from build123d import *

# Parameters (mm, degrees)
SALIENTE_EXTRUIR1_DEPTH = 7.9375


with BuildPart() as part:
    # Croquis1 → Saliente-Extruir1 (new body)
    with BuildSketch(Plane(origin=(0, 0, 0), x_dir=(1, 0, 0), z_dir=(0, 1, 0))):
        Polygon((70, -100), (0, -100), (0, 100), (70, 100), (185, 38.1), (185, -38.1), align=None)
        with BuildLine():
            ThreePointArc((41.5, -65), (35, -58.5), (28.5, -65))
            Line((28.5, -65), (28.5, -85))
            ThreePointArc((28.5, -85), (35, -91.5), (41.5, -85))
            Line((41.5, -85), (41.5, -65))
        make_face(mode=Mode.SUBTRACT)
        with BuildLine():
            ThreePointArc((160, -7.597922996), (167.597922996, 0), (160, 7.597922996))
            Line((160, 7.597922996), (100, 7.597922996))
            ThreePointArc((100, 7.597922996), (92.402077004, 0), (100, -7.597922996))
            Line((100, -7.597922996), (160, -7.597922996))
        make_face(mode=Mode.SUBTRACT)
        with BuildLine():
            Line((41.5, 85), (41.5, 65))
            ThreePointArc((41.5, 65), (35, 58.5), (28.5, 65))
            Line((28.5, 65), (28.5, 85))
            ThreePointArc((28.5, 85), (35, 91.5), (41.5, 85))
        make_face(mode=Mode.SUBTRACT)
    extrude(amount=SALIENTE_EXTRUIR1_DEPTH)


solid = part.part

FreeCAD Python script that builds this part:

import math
import FreeCAD as App
import Part
import Sketcher

doc = App.newDocument("Part")
body = doc.addObject("PartDesign::Body", "Body")

# Sketch on XZ plane
sketch1 = body.newObject("Sketcher::SketchObject", "Sketch")
sketch1.AttachmentSupport = (doc.getObject("XZ_Plane"), [""])
sketch1.MapMode = "FlatFace"
sketch1.addGeometry(Part.LineSegment(App.Vector(0, 100, 0), App.Vector(70, 100, 0)), False)
sketch1.addGeometry(Part.LineSegment(App.Vector(70, 100, 0), App.Vector(185, 38, 0)), False)
sketch1.addGeometry(Part.LineSegment(App.Vector(185, 38, 0), App.Vector(185, -38, 0)), False)
sketch1.addGeometry(Part.LineSegment(App.Vector(185, -38, 0), App.Vector(70, -100, 0)), False)
sketch1.addGeometry(Part.LineSegment(App.Vector(70, -100, 0), App.Vector(0, -100, 0)), False)
sketch1.addGeometry(Part.LineSegment(App.Vector(0, -100, 0), App.Vector(0, 100, 0)), False)
sketch1.addGeometry(Part.LineSegment(App.Vector(42, 65, 0), App.Vector(42, 85, 0)), False)
sketch1.addGeometry(Part.ArcOfCircle(Part.Circle(App.Vector(35, 85, 0), App.Vector(0, 0, 1), 6), math.radians(0), math.radians(180)), False)
sketch1.addGeometry(Part.LineSegment(App.Vector(28, 85, 0), App.Vector(28, 65, 0)), False)
sketch1.addGeometry(Part.ArcOfCircle(Part.Circle(App.Vector(35, 65, 0), App.Vector(0, 0, 1), 6), math.radians(180), math.radians(360)), False)
sketch1.addGeometry(Part.LineSegment(App.Vector(160, 8, 0), App.Vector(100, 8, 0)), False)
sketch1.addGeometry(Part.ArcOfCircle(Part.Circle(App.Vector(100, 0, 0), App.Vector(0, 0, 1), 8), math.radians(90), math.radians(270)), False)
sketch1.addGeometry(Part.LineSegment(App.Vector(100, -8, 0), App.Vector(160, -8, 0)), False)
sketch1.addGeometry(Part.ArcOfCircle(Part.Circle(App.Vector(160, 0, 0), App.Vector(0, 0, 1), 8), math.radians(-90), math.radians(90)), False)
sketch1.addGeometry(Part.LineSegment(App.Vector(42, -85, 0), App.Vector(42, -65, 0)), False)
sketch1.addGeometry(Part.ArcOfCircle(Part.Circle(App.Vector(35, -65, 0), App.Vector(0, 0, 1), 6), math.radians(0), math.radians(180)), False)
sketch1.addGeometry(Part.LineSegment(App.Vector(28, -65, 0), App.Vector(28, -85, 0)), False)
sketch1.addGeometry(Part.ArcOfCircle(Part.Circle(App.Vector(35, -85, 0), App.Vector(0, 0, 1), 6), math.radians(180), math.radians(360)), False)
sketch1.addConstraint(Sketcher.Constraint("Coincident", 0, 2, 1, 1))
sketch1.addConstraint(Sketcher.Constraint("Coincident", 1, 2, 2, 1))
sketch1.addConstraint(Sketcher.Constraint("Coincident", 2, 2, 3, 1))
sketch1.addConstraint(Sketcher.Constraint("Coincident", 3, 2, 4, 1))
sketch1.addConstraint(Sketcher.Constraint("Coincident", 4, 2, 5, 1))
sketch1.addConstraint(Sketcher.Constraint("Coincident", 5, 2, 0, 1))
sketch1.addConstraint(Sketcher.Constraint("Tangent", 6, 2, 7, 1))
sketch1.addConstraint(Sketcher.Constraint("Tangent", 7, 2, 8, 1))
sketch1.addConstraint(Sketcher.Constraint("Tangent", 8, 2, 9, 1))
sketch1.addConstraint(Sketcher.Constraint("Tangent", 9, 2, 6, 1))
sketch1.addConstraint(Sketcher.Constraint("Tangent", 10, 2, 11, 1))
sketch1.addConstraint(Sketcher.Constraint("Tangent", 11, 2, 12, 1))
sketch1.addConstraint(Sketcher.Constraint("Tangent", 12, 2, 13, 1))
sketch1.addConstraint(Sketcher.Constraint("Tangent", 13, 2, 10, 1))
sketch1.addConstraint(Sketcher.Constraint("Tangent", 14, 2, 15, 1))
sketch1.addConstraint(Sketcher.Constraint("Tangent", 15, 2, 16, 1))
sketch1.addConstraint(Sketcher.Constraint("Tangent", 16, 2, 17, 1))
sketch1.addConstraint(Sketcher.Constraint("Tangent", 17, 2, 14, 1))
sketch1.addConstraint(Sketcher.Constraint("Horizontal", 0))
sketch1.addConstraint(Sketcher.Constraint("Vertical", 2))
sketch1.addConstraint(Sketcher.Constraint("Horizontal", 4))
sketch1.addConstraint(Sketcher.Constraint("Vertical", 5))
sketch1.addConstraint(Sketcher.Constraint("Vertical", 6))
sketch1.addConstraint(Sketcher.Constraint("Vertical", 8))
sketch1.addConstraint(Sketcher.Constraint("Horizontal", 10))
sketch1.addConstraint(Sketcher.Constraint("Horizontal", 12))
sketch1.addConstraint(Sketcher.Constraint("Vertical", 14))
sketch1.addConstraint(Sketcher.Constraint("Vertical", 16))
sketch1.addConstraint(Sketcher.Constraint("Equal", 9, 15))
sketch1.addConstraint(Sketcher.Constraint("Symmetric", 4, 2, 5, 2, -1, 1))
sketch1.addConstraint(Sketcher.Constraint("Symmetric", 9, 3, 15, 3, -1))
sketch1.addConstraint(Sketcher.Constraint("PointOnObject", 11, 3, -1))
sketch1.addConstraint(Sketcher.Constraint("Vertical", 0, 2, 3, 2))
sketch1.addConstraint(Sketcher.Constraint("Equal", 8, 14))
sketch1.addConstraint(Sketcher.Constraint("Equal", 1, 3))
sketch1.addConstraint(Sketcher.Constraint("Radius", 7, 6.5))
sketch1.addConstraint(Sketcher.Constraint("DistanceX", 0, 1, 0, 2, 70.0))
sketch1.addConstraint(Sketcher.Constraint("DistanceX", 10, 2, 10, 1, 60.0))
sketch1.addConstraint(Sketcher.Constraint("DistanceY", 5, 1, 5, 2, 200.0))
sketch1.addConstraint(Sketcher.Constraint("DistanceY", 6, 1, 6, 2, 20.0))
sketch1.addConstraint(Sketcher.Constraint("DistanceY", 2, 2, 2, 1, 76.2))
sketch1.addConstraint(Sketcher.Constraint("DistanceX", -1, 1, 7, 3, 35.0))
sketch1.addConstraint(Sketcher.Constraint("DistanceY", -1, 1, 7, 3, 85.0))
sketch1.addConstraint(Sketcher.Constraint("DistanceX", -1, 1, 11, 3, 100.0))
sketch1.addConstraint(Sketcher.Constraint("DistanceX", -1, 1, 1, 2, 185.0))
sketch1.addConstraint(Sketcher.Constraint("Radius", 11, 7.597923))
pad1 = body.newObject("PartDesign::Pad", "Pad")
pad1.Profile = sketch1
pad1.Length = 7.9375
pad1.Reversed = True

doc.recompute()
